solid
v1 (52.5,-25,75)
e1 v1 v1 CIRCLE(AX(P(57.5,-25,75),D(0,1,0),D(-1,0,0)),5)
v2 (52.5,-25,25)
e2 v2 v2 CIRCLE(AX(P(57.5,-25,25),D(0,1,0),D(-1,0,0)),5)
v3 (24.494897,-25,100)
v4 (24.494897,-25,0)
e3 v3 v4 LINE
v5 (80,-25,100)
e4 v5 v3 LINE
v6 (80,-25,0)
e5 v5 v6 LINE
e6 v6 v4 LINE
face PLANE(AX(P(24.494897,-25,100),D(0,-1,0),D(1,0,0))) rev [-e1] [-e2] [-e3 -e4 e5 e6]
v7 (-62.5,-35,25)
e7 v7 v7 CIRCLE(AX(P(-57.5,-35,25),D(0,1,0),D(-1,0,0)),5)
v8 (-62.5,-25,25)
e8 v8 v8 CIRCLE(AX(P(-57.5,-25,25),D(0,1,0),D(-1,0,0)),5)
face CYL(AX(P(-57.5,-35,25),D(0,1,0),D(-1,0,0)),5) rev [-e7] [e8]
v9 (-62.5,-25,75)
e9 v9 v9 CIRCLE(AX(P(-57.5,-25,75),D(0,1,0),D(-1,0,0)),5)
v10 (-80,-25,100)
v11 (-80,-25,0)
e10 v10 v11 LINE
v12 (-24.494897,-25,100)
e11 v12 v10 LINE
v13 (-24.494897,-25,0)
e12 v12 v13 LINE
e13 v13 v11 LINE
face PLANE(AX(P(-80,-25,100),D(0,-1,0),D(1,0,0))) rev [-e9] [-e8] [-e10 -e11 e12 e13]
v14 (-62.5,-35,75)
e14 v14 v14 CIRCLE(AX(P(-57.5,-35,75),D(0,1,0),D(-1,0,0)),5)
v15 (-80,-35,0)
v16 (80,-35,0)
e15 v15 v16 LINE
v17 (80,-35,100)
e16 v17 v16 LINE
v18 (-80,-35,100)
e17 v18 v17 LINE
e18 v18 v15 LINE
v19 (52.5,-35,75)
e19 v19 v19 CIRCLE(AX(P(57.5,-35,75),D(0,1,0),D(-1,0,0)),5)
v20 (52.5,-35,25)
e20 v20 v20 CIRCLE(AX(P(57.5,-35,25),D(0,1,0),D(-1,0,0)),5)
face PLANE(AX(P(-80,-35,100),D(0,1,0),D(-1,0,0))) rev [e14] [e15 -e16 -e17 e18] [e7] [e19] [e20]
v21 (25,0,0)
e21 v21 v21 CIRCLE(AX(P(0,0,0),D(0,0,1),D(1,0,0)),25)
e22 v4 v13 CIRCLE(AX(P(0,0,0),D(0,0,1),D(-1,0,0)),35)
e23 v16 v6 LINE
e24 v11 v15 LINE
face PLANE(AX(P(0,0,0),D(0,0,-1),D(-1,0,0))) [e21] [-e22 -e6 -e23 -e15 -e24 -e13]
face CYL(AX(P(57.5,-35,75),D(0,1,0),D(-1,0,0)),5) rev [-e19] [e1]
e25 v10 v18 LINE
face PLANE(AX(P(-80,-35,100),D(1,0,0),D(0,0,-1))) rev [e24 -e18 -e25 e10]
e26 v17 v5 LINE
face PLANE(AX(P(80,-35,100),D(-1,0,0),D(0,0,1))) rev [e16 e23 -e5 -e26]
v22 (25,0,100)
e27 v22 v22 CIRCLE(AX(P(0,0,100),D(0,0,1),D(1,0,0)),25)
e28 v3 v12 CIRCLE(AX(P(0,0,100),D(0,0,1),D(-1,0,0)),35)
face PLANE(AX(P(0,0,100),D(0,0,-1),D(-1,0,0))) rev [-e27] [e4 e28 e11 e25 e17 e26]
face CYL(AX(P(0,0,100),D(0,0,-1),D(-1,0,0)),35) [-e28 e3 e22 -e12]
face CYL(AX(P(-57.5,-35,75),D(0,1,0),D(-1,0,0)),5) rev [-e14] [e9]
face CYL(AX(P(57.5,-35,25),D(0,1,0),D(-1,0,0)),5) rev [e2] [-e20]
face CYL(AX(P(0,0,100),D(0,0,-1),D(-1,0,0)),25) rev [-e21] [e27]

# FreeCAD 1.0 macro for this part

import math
import FreeCAD as App
import Part
import Sketcher

V = App.Vector

doc = App.newDocument("Part")
body = doc.addObject("PartDesign::Body", "Body")

# Sketch on XY plane
sketch1 = body.newObject("Sketcher::SketchObject", "Sketch")
sketch1.AttachmentSupport = (doc.getObject("XY_Plane"), [""])
sketch1.MapMode = "FlatFace"
sketch1.addGeometry([
    Part.LineSegment(V(-80, -35, 0), V(80, -35, 0)),  # 0
    Part.LineSegment(V(80, -35, 0), V(80, -25, 0)),  # 1
    Part.LineSegment(V(80, -25, 0), V(24.494897, -25, 0)),  # 2
    Part.ArcOfCircle(Part.Circle(V(0, 0, 0), V(0, 0, 1), 35), math.radians(-45.584691), math.radians(225.584691)),  # 3
    Part.LineSegment(V(-24.494897, -25, 0), V(-80, -25, 0)),  # 4
    Part.LineSegment(V(-80, -25, 0), V(-80, -35, 0)),  # 5
    Part.Circle(V(0, 0, 0), V(0, 0, 1), 25),  # 6
], False)
sketch1.addConstraint([
    Sketcher.Constraint("Coincident", 0, 2, 1, 1),
    Sketcher.Constraint("Coincident", 1, 2, 2, 1),
    Sketcher.Constraint("Coincident", 2, 2, 3, 1),
    Sketcher.Constraint("Coincident", 3, 2, 4, 1),
    Sketcher.Constraint("Coincident", 4, 2, 5, 1),
    Sketcher.Constraint("Coincident", 5, 2, 0, 1),
    Sketcher.Constraint("Horizontal", 0),
    Sketcher.Constraint("Vertical", 1),
    Sketcher.Constraint("Horizontal", 2),
    Sketcher.Constraint("Horizontal", 4),
    Sketcher.Constraint("Vertical", 5),
    Sketcher.Constraint("Coincident", 3, 3, -1, 1),
    Sketcher.Constraint("Coincident", 6, 3, -1, 1),
    Sketcher.Constraint("Symmetric", 1, 2, 4, 2, -2),
    Sketcher.Constraint("Diameter", 6, 50.0),
    Sketcher.Constraint("Radius", 3, 35.0),
    Sketcher.Constraint("DistanceX", 0, 1, 0, 2, 160.0),
    Sketcher.Constraint("DistanceY", 1, 1, 1, 2, 10.0),
    Sketcher.Constraint("DistanceY", 0, 2, -1, 1, 35.0),
])
pad1 = body.newObject("PartDesign::Pad", "Pad")
pad1.Profile = sketch1
pad1.Length = 100

# Sketch on XZ plane
sketch2 = body.newObject("Sketcher::SketchObject", "Sketch001")
sketch2.AttachmentSupport = (doc.getObject("XZ_Plane"), [""])
sketch2.MapMode = "FlatFace"
sketch2.AttachmentOffset = App.Placement(V(0, 0, 25), App.Rotation())
sketch2.addGeometry([
    Part.Circle(V(57.5, 25, 0), V(0, 0, 1), 5),
    Part.Circle(V(57.5, 75, 0), V(0, 0, 1), 5),
    Part.Circle(V(-57.5, 25, 0), V(0, 0, 1), 5),
    Part.Circle(V(-57.5, 75, 0), V(0, 0, 1), 5),
], False)
sketch2.addConstraint([
    Sketcher.Constraint("Equal", 0, 1),
    Sketcher.Constraint("Equal", 1, 2),
    Sketcher.Constraint("Equal", 2, 3),
    Sketcher.Constraint("Symmetric", 0, 3, 2, 3, -2),
    Sketcher.Constraint("Symmetric", 1, 3, 3, 3, -2),
    Sketcher.Constraint("Vertical", 0, 3, 1, 3),
    Sketcher.Constraint("Diameter", 0, 10.0),
    Sketcher.Constraint("DistanceY", -1, 1, 0, 3, 25.0),
    Sketcher.Constraint("DistanceY", -1, 1, 1, 3, 75.0),
    Sketcher.Constraint("DistanceX", 2, 3, 0, 3, 115.0),
])
pocket1 = body.newObject("PartDesign::Pocket", "Pocket")
pocket1.Profile = sketch2
pocket1.Length = 10
pocket1.Reversed = True

doc.recompute()
